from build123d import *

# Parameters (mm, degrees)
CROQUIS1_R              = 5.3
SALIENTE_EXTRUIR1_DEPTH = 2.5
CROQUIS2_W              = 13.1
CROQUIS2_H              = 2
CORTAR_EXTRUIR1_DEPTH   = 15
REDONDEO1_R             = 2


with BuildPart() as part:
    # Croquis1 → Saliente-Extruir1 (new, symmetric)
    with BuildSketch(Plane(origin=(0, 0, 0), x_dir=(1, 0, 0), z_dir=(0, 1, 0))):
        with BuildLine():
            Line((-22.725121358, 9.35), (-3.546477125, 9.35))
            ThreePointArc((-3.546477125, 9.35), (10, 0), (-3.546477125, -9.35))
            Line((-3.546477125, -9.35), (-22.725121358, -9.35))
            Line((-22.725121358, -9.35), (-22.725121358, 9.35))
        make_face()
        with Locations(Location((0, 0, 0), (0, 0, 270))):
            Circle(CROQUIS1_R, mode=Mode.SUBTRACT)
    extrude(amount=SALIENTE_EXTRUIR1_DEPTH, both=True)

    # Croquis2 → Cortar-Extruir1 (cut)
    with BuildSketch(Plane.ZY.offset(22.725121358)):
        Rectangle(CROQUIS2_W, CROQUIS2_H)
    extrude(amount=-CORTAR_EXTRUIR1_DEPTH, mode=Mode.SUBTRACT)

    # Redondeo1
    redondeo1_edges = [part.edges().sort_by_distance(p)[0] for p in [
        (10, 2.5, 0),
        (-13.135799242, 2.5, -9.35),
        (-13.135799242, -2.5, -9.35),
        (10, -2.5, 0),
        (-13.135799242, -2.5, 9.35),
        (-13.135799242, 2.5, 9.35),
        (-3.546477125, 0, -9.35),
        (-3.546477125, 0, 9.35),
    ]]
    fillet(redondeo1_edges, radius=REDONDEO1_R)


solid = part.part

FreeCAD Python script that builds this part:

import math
import FreeCAD as App
import Part
import Sketcher
from FreeCAD import Vector
Q = App.Units.Quantity


def edges_at(feature, points):
    """Names of the edges that pass closest to the given points."""
    edges = feature.Shape.Edges
    near = lambda p: min(range(len(edges)), key=lambda i: edges[i].distToShape(Part.Vertex(*p))[0])
    return sorted({f"Edge{near(p) + 1}" for p in points})


def add_polygon(sketch, points):
    """Adds a closed chain of lines whose ends are joined by coincident constraints."""
    first, n = sketch.GeometryCount, len(points)
    for a, b in zip(points, points[1:] + points[:1]):
        sketch.addGeometry(Part.LineSegment(App.Vector(*a, 0), App.Vector(*b, 0)), False)
    for i in range(n):
        sketch.addConstraint(Sketcher.Constraint("Coincident", first + i, 2, first + (i + 1) % n, 1))

doc = App.newDocument("Part")
body = doc.addObject("PartDesign::Body", "Body")

sketch1 = body.newObject("Sketcher::SketchObject", "Sketch")
sketch1.AttachmentSupport = (doc.getObject("XZ_Plane"), [""])
sketch1.MapMode = "FlatFace"
sketch1.addGeometry([
    Part.LineSegment(Vector(-3.546477, -9.35, 0), Vector(-22.725121, -9.35, 0)),
    Part.LineSegment(Vector(-22.725121, -9.35, 0), Vector(-22.725121, 9.35, 0)),
    Part.LineSegment(Vector(-22.725121, 9.35, 0), Vector(-3.546477, 9.35, 0)),
    Part.ArcOfCircle(Part.Circle(Vector(0, 0, 0), Vector(0, 0, 1), 10), math.radians(-110.771855), math.radians(110.771855)),
    Part.Circle(Vector(0, 0, 0), Vector(0, 0, 1), 5.3),
], False)
sketch1.addConstraint([
    Sketcher.Constraint("Coincident", 0, 2, 1, 1),
    Sketcher.Constraint("Coincident", 1, 2, 2, 1),
    Sketcher.Constraint("Coincident", 2, 2, 3, 2),
    Sketcher.Constraint("Coincident", 3, 1, 0, 1),
    Sketcher.Constraint("Horizontal", 0),
    Sketcher.Constraint("Vertical", 1),
    Sketcher.Constraint("Horizontal", 2),
    Sketcher.Constraint("Coincident", 3, 3, -1, 1),
    Sketcher.Constraint("Coincident", 4, 3, -1, 1),
    Sketcher.Constraint("Vertical", 2, 2, 3, 1),
    Sketcher.Constraint("Radius", 3, Q("10 mm")),
    Sketcher.Constraint("Diameter", 4, Q("10.6 mm")),
    Sketcher.Constraint("DistanceY", 1, 1, 1, 2, Q("18.7 mm")),
    Sketcher.Constraint("DistanceX", 0, 2, 0, 1, Q("19.178644 mm")),
])
pad1 = body.newObject("PartDesign::Pad", "Pad")
pad1.Profile = sketch1
pad1.Length = 5
pad1.Midplane = True

sketch2 = body.newObject("Sketcher::SketchObject", "Sketch001")
sketch2.AttachmentSupport = (doc.getObject("YZ_Plane"), [""])
sketch2.MapMode = "FlatFace"
sketch2.AttachmentOffset = App.Placement(Vector(0, 0, -22.725121), App.Rotation())
add_polygon(sketch2, [(1, -6.55), (-1, -6.55), (-1, 6.55), (1, 6.55)])
sketch2.addConstraint([
    Sketcher.Constraint("Horizontal", 0),
    Sketcher.Constraint("Vertical", 1),
    Sketcher.Constraint("Horizontal", 2),
    Sketcher.Constraint("Vertical", 3),
    Sketcher.Constraint("Symmetric", 0, 2, 2, 2, -1, 1),
    Sketcher.Constraint("DistanceX", 0, 2, 0, 1, Q("2 mm")),
    Sketcher.Constraint("DistanceY", 1, 1, 1, 2, Q("13.1 mm")),
])
pocket1 = body.newObject("PartDesign::Pocket", "Pocket")
pocket1.Profile = sketch2
pocket1.Length = 15
pocket1.Reversed = True
doc.recompute()

fillet = body.newObject("PartDesign::Fillet", "Fillet")
fillet.Base = (pocket1, edges_at(pocket1, [
    (10, 2.5, 0),
    (-13.136, 2.5, -9.35),
    (-13.136, -2.5, -9.35),
    (10, -2.5, 0),
    (-13.136, -2.5, 9.35),
    (-13.136, 2.5, 9.35),
    (-3.546, 0, -9.35),
    (-3.546, 0, 9.35),
]))
fillet.Radius = 2

doc.recompute()
